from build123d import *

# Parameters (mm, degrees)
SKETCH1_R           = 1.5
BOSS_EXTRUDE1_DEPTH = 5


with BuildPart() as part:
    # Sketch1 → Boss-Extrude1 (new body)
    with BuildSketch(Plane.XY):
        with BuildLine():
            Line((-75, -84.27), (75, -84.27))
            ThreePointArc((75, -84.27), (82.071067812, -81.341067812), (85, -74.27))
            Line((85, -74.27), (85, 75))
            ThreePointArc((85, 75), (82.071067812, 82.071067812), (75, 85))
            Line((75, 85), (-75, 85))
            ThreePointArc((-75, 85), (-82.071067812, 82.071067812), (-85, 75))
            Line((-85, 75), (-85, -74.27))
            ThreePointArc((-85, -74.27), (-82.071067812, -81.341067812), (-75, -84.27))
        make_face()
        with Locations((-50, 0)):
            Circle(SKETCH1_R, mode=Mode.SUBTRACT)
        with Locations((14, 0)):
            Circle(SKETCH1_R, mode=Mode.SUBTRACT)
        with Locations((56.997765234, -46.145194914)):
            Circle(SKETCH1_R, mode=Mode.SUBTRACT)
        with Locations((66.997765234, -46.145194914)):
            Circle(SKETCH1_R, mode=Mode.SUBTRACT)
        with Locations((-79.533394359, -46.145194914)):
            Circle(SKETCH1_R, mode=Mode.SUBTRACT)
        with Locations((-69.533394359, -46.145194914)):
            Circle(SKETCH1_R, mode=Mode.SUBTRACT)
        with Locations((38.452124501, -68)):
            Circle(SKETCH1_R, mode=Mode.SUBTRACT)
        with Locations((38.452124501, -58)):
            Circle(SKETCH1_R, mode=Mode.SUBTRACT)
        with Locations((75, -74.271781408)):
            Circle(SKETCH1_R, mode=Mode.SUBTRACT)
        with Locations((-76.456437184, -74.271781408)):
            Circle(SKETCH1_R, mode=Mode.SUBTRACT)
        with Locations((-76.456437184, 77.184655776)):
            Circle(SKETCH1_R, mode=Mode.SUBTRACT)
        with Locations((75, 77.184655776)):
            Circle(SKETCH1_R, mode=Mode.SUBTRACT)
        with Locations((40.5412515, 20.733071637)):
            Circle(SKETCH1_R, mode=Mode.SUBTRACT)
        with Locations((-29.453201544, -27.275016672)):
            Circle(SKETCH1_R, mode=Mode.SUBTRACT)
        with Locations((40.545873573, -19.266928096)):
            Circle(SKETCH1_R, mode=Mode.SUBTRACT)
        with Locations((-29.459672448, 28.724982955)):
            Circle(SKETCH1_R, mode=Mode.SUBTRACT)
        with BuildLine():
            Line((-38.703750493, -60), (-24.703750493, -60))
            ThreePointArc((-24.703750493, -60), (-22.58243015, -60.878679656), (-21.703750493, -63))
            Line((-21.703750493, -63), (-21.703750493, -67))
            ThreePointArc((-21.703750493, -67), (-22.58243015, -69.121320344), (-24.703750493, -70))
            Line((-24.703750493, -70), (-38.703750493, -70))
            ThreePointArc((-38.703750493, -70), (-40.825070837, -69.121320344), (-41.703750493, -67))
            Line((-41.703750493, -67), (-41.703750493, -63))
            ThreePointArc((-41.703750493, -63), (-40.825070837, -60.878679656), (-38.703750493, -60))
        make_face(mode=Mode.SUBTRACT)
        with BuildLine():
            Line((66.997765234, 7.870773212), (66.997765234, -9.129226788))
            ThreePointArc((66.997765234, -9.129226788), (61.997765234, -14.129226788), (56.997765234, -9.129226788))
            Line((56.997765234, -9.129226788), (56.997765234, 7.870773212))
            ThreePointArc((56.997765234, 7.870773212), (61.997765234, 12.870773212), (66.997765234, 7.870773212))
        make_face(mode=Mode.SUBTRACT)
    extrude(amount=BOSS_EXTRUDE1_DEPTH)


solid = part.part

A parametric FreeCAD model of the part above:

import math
import FreeCAD as App
import Part
import Sketcher

V = App.Vector

doc = App.newDocument("Part")
body = doc.addObject("PartDesign::Body", "Body")

# Sketch on XY plane
sketch1 = body.newObject("Sketcher::SketchObject", "Sketch")
sketch1.AttachmentSupport = (doc.getObject("XY_Plane"), [""])
sketch1.MapMode = "FlatFace"
sketch1.addGeometry(Part.LineSegment(V(-75, -84.27, 0), V(75, -84.27, 0)), False)
sketch1.addGeometry(Part.ArcOfCircle(Part.Circle(V(75, -74.27, 0), V(0, 0, 1), 10), math.radians(-90), math.radians(0)), False)
sketch1.addGeometry(Part.LineSegment(V(85, -74.27, 0), V(85, 75, 0)), False)
sketch1.addGeometry(Part.ArcOfCircle(Part.Circle(V(75, 75, 0), V(0, 0, 1), 10), math.radians(0), math.radians(90)), False)
sketch1.addGeometry(Part.LineSegment(V(75, 85, 0), V(-75, 85, 0)), False)
sketch1.addGeometry(Part.ArcOfCircle(Part.Circle(V(-75, 75, 0), V(0, 0, 1), 10), math.radians(90), math.radians(180)), False)
sketch1.addGeometry(Part.LineSegment(V(-85, 75, 0), V(-85, -74.27, 0)), False)
sketch1.addGeometry(Part.ArcOfCircle(Part.Circle(V(-75, -74.27, 0), V(0, 0, 1), 10), math.radians(180), math.radians(270)), False)
sketch1.addGeometry(Part.Circle(V(-76.456437, -74.271781, 0), V(0, 0, 1), 1.5), False)
sketch1.addGeometry(Part.Circle(V(-79.533394, -46.145195, 0), V(0, 0, 1), 1.5), False)
sketch1.addGeometry(Part.Circle(V(-69.533394, -46.145195, 0), V(0, 0, 1), 1.5), False)
sketch1.addGeometry(Part.ArcOfCircle(Part.Circle(V(-38.70375, -63, 0), V(0, 0, 1), 3), math.radians(90), math.radians(180)), False)
sketch1.addGeometry(Part.LineSegment(V(-38.70375, -60, 0), V(-24.70375, -60, 0)), False)
sketch1.addGeometry(Part.ArcOfCircle(Part.Circle(V(-24.70375, -63, 0), V(0, 0, 1), 3), math.radians(0), math.radians(90)), False)
sketch1.addGeometry(Part.LineSegment(V(-21.70375, -63, 0), V(-21.70375, -67, 0)), False)
sketch1.addGeometry(Part.ArcOfCircle(Part.Circle(V(-24.70375, -67, 0), V(0, 0, 1), 3), math.radians(-90), math.radians(0)), False)
sketch1.addGeometry(Part.LineSegment(V(-24.70375, -70, 0), V(-38.70375, -70, 0)), False)
sketch1.addGeometry(Part.ArcOfCircle(Part.Circle(V(-38.70375, -67, 0), V(0, 0, 1), 3), math.radians(180), math.radians(270)), False)
sketch1.addGeometry(Part.LineSegment(V(-41.70375, -67, 0), V(-41.70375, -63, 0)), False)
sketch1.addGeometry(Part.Circle(V(-50, 0, 0), V(0, 0, 1), 1.5), False)
sketch1.addGeometry(Part.Circle(V(-29.453202, -27.275017, 0), V(0, 0, 1), 1.5), False)
sketch1.addGeometry(Part.Circle(V(38.452125, -68, 0), V(0, 0, 1), 1.5), False)
sketch1.addGeometry(Part.Circle(V(38.452125, -58, 0), V(0, 0, 1), 1.5), False)
sketch1.addGeometry(Part.Circle(V(75, -74.271781, 0), V(0, 0, 1), 1.5), False)
sketch1.addGeometry(Part.Circle(V(56.997765, -46.145195, 0), V(0, 0, 1), 1.5), False)
sketch1.addGeometry(Part.Circle(V(66.997765, -46.145195, 0), V(0, 0, 1), 1.5), False)
sketch1.addGeometry(Part.Circle(V(14, 0, 0), V(0, 0, 1), 1.5), False)
sketch1.addGeometry(Part.Circle(V(40.545874, -19.266928, 0), V(0, 0, 1), 1.5), False)
sketch1.addGeometry(Part.ArcOfCircle(Part.Circle(V(61.997765, 7.870773, 0), V(0, 0, 1), 5), math.radians(0), math.radians(180)), False)
sketch1.addGeometry(Part.LineSegment(V(66.997765, 7.870773, 0), V(66.997765, -9.129227, 0)), False)
sketch1.addGeometry(Part.ArcOfCircle(Part.Circle(V(61.997765, -9.129227, 0), V(0, 0, 1), 5), math.radians(180), math.radians(360)), False)
sketch1.addGeometry(Part.LineSegment(V(56.997765, -9.129227, 0), V(56.997765, 7.870773, 0)), False)
sketch1.addGeometry(Part.Circle(V(-29.459672, 28.724983, 0), V(0, 0, 1), 1.5), False)
sketch1.addGeometry(Part.Circle(V(-76.456437, 77.184656, 0), V(0, 0, 1), 1.5), False)
sketch1.addGeometry(Part.Circle(V(40.541252, 20.733072, 0), V(0, 0, 1), 1.5), False)
sketch1.addGeometry(Part.Circle(V(75, 77.184656, 0), V(0, 0, 1), 1.5), False)
sketch1.addConstraint(Sketcher.Constraint("Tangent", 0, 2, 1, 1))
sketch1.addConstraint(Sketcher.Constraint("Tangent", 1, 2, 2, 1))
sketch1.addConstraint(Sketcher.Constraint("Tangent", 2, 2, 3, 1))
sketch1.addConstraint(Sketcher.Constraint("Tangent", 3, 2, 4, 1))
sketch1.addConstraint(Sketcher.Constraint("Tangent", 4, 2, 5, 1))
sketch1.addConstraint(Sketcher.Constraint("Tangent", 5, 2, 6, 1))
sketch1.addConstraint(Sketcher.Constraint("Tangent", 6, 2, 7, 1))
sketch1.addConstraint(Sketcher.Constraint("Tangent", 7, 2, 0, 1))
sketch1.addConstraint(Sketcher.Constraint("Tangent", 11, 1, 12, 1))
sketch1.addConstraint(Sketcher.Constraint("Tangent", 12, 2, 13, 2))
sketch1.addConstraint(Sketcher.Constraint("Tangent", 13, 1, 14, 1))
sketch1.addConstraint(Sketcher.Constraint("Tangent", 14, 2, 15, 2))
sketch1.addConstraint(Sketcher.Constraint("Tangent", 15, 1, 16, 1))
sketch1.addConstraint(Sketcher.Constraint("Tangent", 16, 2, 17, 2))
sketch1.addConstraint(Sketcher.Constraint("Tangent", 17, 1, 18, 1))
sketch1.addConstraint(Sketcher.Constraint("Tangent", 18, 2, 11, 2))
sketch1.addConstraint(Sketcher.Constraint("Tangent", 28, 1, 29, 1))
sketch1.addConstraint(Sketcher.Constraint("Tangent", 29, 2, 30, 2))
sketch1.addConstraint(Sketcher.Constraint("Tangent", 30, 1, 31, 1))
sketch1.addConstraint(Sketcher.Constraint("Tangent", 31, 2, 28, 2))
sketch1.addConstraint(Sketcher.Constraint("Horizontal", 0))
sketch1.addConstraint(Sketcher.Constraint("Vertical", 2))
sketch1.addConstraint(Sketcher.Constraint("Horizontal", 4))
sketch1.addConstraint(Sketcher.Constraint("Vertical", 6))
sketch1.addConstraint(Sketcher.Constraint("Horizontal", 12))
sketch1.addConstraint(Sketcher.Constraint("Vertical", 14))
sketch1.addConstraint(Sketcher.Constraint("Horizontal", 16))
sketch1.addConstraint(Sketcher.Constraint("Vertical", 18))
sketch1.addConstraint(Sketcher.Constraint("Vertical", 29))
sketch1.addConstraint(Sketcher.Constraint("Vertical", 31))
sketch1.addConstraint(Sketcher.Constraint("Equal", 1, 3))
sketch1.addConstraint(Sketcher.Constraint("Equal", 3, 5))
sketch1.addConstraint(Sketcher.Constraint("Equal", 5, 7))
sketch1.addConstraint(Sketcher.Constraint("Equal", 8, 9))
sketch1.addConstraint(Sketcher.Constraint("Equal", 9, 10))
sketch1.addConstraint(Sketcher.Constraint("Equal", 11, 13))
sketch1.addConstraint(Sketcher.Constraint("Equal", 13, 15))
sketch1.addConstraint(Sketcher.Constraint("Equal", 15, 17))
sketch1.addConstraint(Sketcher.Constraint("Equal", 10, 19))
sketch1.addConstraint(Sketcher.Constraint("Equal", 19, 20))
sketch1.addConstraint(Sketcher.Constraint("Equal", 20, 21))
sketch1.addConstraint(Sketcher.Constraint("Equal", 21, 22))
sketch1.addConstraint(Sketcher.Constraint("Equal", 22, 23))
sketch1.addConstraint(Sketcher.Constraint("Equal", 23, 24))
sketch1.addConstraint(Sketcher.Constraint("Equal", 24, 25))
sketch1.addConstraint(Sketcher.Constraint("Equal", 25, 26))
sketch1.addConstraint(Sketcher.Constraint("Equal", 26, 27))
sketch1.addConstraint(Sketcher.Constraint("Equal", 27, 32))
sketch1.addConstraint(Sketcher.Constraint("Equal", 32, 33))
sketch1.addConstraint(Sketcher.Constraint("Equal", 33, 34))
sketch1.addConstraint(Sketcher.Constraint("Equal", 34, 35))
sketch1.addConstraint(Sketcher.Constraint("PointOnObject", 19, 3, -1))
sketch1.addConstraint(Sketcher.Constraint("PointOnObject", 26, 3, -1))
sketch1.addConstraint(Sketcher.Constraint("Horizontal", 9, 3, 10, 3))
sketch1.addConstraint(Sketcher.Constraint("Horizontal", 8, 3, 23, 3))
sketch1.addConstraint(Sketcher.Constraint("Horizontal", 10, 3, 24, 3))
sketch1.addConstraint(Sketcher.Constraint("Horizontal", 24, 3, 25, 3))
sketch1.addConstraint(Sketcher.Constraint("Horizontal", 33, 3, 35, 3))
sketch1.addConstraint(Sketcher.Constraint("Vertical", 21, 3, 22, 3))
sketch1.addConstraint(Sketcher.Constraint("Vertical", 3, 3, 23, 3))
sketch1.addConstraint(Sketcher.Constraint("Vertical", 8, 3, 33, 3))
sketch1.addConstraint(Sketcher.Constraint("Vertical", 23, 3, 35, 3))
sketch1.addConstraint(Sketcher.Constraint("Vertical", 25, 3, 28, 1))
sketch1.addConstraint(Sketcher.Constraint("Vertical", 24, 3, 30, 1))
sketch1.addConstraint(Sketcher.Constraint("Diameter", 8, 3.0))
sketch1.addConstraint(Sketcher.Constraint("Radius", 1, 10.0))
sketch1.addConstraint(Sketcher.Constraint("Radius", 11, 3.0))
sketch1.addConstraint(Sketcher.Constraint("Radius", 28, 5.0))
sketch1.addConstraint(Sketcher.Constraint("DistanceX", 0, 1, 0, 2, 150.0))
sketch1.addConstraint(Sketcher.Constraint("DistanceX", 12, 1, 12, 2, 14.0))
sketch1.addConstraint(Sketcher.Constraint("DistanceY", 14, 2, 14, 1, 4.0))
sketch1.addConstraint(Sketcher.Constraint("DistanceY", 29, 2, 29, 1, 17.0))
sketch1.addConstraint(Sketcher.Constraint("DistanceX", -1, 1, 1, 3, 75.0))
sketch1.addConstraint(Sketcher.Constraint("DistanceY", -1, 1, 3, 3, 75.0))
sketch1.addConstraint(Sketcher.Constraint("DistanceY", 11, 3, -1, 1, 63.0))
sketch1.addConstraint(Sketcher.Constraint("DistanceX", 19, 3, -1, 1, 50.0))
sketch1.addConstraint(Sketcher.Constraint("DistanceY", 21, 3, -1, 1, 68.0))
sketch1.addConstraint(Sketcher.Constraint("DistanceY", 22, 3, -1, 1, 58.0))
sketch1.addConstraint(Sketcher.Constraint("DistanceX", -1, 1, 26, 3, 14.0))
sketch1.addConstraint(Sketcher.Constraint("DistanceX", 9, 3, 10, 3, 10.0))
sketch1.addConstraint(Sketcher.Constraint("DistanceY", 20, 3, 32, 3, 56.0))
sketch1.addConstraint(Sketcher.Constraint("DistanceY", 27, 3, 34, 3, 40.0))
sketch1.addConstraint(Sketcher.Constraint("DistanceY", 2, 1, 2, 2, 149.27))
sketch1.addConstraint(Sketcher.Constraint("DistanceX", 20, 3, -1, 1, 29.453202))
sketch1.addConstraint(Sketcher.Constraint("DistanceY", 27, 3, 28, 3, 27.137701))
sketch1.addConstraint(Sketcher.Constraint("DistanceY", 8, 3, -1, 1, 74.271781))
sketch1.addConstraint(Sketcher.Constraint("DistanceX", 11, 3, -1, 1, 38.70375))
sketch1.addConstraint(Sketcher.Constraint("DistanceY", 27, 3, -1, 1, 19.266928))
sketch1.addConstraint(Sketcher.Constraint("DistanceX", -1, 1, 34, 3, 40.541252))
sketch1.addConstraint(Sketcher.Constraint("DistanceX", 22, 3, 24, 3, 18.545641))
sketch1.addConstraint(Sketcher.Constraint("DistanceX", 27, 3, 24, 3, 16.451892))
sketch1.addConstraint(Sketcher.Constraint("DistanceY", 24, 3, 28, 3, 54.015968))
sketch1.addConstraint(Sketcher.Constraint("DistanceX", 32, 3, 20, 3, 0.006471))
sketch1.addConstraint(Sketcher.Constraint("DistanceY", 27, 3, 32, 3, 47.991911))
sketch1.addConstraint(Sketcher.Constraint("DistanceX", 8, 3, -1, 1, 76.456437))
sketch1.addConstraint(Sketcher.Constraint("DistanceX", 9, 3, -1, 1, 79.533394))
sketch1.addConstraint(Sketcher.Constraint("DistanceX", -1, 1, 21, 3, 38.452125))
sketch1.addConstraint(Sketcher.Constraint("DistanceY", -1, 1, 33, 3, 77.184656))
pad1 = body.newObject("PartDesign::Pad", "Pad")
pad1.Profile = sketch1
pad1.Length = 5

doc.recompute()
